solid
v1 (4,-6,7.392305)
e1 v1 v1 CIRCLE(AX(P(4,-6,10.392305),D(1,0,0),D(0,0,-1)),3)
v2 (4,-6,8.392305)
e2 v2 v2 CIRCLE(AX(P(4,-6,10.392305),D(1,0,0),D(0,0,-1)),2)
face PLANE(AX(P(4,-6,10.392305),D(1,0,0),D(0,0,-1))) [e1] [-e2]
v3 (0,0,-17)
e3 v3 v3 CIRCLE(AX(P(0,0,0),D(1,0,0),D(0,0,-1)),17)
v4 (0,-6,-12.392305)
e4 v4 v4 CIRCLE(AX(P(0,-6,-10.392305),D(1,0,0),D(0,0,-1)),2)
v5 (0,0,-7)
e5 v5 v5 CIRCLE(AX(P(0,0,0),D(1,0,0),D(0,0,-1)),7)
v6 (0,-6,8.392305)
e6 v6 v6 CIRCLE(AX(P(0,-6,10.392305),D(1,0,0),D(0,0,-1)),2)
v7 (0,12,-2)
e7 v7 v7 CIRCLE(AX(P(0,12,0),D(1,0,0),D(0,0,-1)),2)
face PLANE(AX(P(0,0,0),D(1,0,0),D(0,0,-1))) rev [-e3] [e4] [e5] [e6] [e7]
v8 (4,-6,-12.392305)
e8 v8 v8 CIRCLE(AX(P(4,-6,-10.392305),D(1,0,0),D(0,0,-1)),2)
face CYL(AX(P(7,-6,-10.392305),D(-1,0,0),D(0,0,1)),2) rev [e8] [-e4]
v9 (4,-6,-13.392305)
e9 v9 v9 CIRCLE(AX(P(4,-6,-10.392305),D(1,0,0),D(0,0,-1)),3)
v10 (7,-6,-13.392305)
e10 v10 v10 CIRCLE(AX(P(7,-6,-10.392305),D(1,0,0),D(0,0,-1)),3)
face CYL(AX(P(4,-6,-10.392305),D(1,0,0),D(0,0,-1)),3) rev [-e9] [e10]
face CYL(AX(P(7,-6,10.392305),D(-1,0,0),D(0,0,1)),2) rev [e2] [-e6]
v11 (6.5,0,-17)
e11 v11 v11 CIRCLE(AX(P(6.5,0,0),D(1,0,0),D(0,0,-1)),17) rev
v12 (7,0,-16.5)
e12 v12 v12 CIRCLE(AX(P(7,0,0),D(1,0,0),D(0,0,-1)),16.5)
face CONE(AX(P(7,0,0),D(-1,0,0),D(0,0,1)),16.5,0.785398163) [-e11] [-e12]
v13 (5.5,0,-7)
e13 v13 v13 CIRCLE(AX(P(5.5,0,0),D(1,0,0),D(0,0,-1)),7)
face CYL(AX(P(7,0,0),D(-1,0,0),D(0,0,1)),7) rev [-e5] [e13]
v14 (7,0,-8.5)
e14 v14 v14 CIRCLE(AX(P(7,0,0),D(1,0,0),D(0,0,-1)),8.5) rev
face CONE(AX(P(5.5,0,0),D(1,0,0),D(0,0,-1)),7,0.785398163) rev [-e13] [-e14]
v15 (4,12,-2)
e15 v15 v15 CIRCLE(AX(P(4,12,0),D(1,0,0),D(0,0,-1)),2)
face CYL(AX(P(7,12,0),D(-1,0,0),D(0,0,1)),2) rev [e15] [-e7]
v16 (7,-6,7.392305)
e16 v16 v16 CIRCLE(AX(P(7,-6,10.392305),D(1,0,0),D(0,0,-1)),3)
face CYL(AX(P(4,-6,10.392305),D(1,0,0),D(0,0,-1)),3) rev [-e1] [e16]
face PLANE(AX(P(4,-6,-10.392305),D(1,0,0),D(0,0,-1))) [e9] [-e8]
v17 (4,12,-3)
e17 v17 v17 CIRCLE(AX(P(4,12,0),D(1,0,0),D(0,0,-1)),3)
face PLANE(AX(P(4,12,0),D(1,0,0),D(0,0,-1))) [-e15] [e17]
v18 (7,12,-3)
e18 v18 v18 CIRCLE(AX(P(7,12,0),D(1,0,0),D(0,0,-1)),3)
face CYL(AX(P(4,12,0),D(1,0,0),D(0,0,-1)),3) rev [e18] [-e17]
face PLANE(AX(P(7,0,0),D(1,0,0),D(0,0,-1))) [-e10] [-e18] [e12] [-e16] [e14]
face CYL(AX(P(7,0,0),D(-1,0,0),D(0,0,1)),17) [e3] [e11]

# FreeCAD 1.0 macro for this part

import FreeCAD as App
import Part
import Sketcher
Q = App.Units.Quantity


def edges_at(feature, points):
    """Names of the edges that pass closest to the given points."""
    edges = feature.Shape.Edges
    near = lambda p: min(range(len(edges)), key=lambda i: edges[i].distToShape(Part.Vertex(*p))[0])
    return sorted({f"Edge{near(p) + 1}" for p in points})

doc = App.newDocument("Part")
body = doc.addObject("PartDesign::Body", "Body")

# Sketch on YZ plane
sketch1 = body.newObject("Sketcher::SketchObject", "Sketch")
sketch1.AttachmentSupport = (doc.getObject("YZ_Plane"), [""])
sketch1.MapMode = "FlatFace"
sketch1.addGeometry(Part.Circle(App.Vector(0, 0, 0), App.Vector(0, 0, 1), 17), False)
sketch1.addGeometry(Part.Circle(App.Vector(-6, 10.392305, 0), App.Vector(0, 0, 1), 2), False)
sketch1.addGeometry(Part.Circle(App.Vector(0, 0, 0), App.Vector(0, 0, 1), 7), False)
sketch1.addGeometry(Part.Circle(App.Vector(-6, -10.392305, 0), App.Vector(0, 0, 1), 2), False)
sketch1.addGeometry(Part.Circle(App.Vector(12, 0, 0), App.Vector(0, 0, 1), 2), False)
sketch1.addConstraint(Sketcher.Constraint("Coincident", 0, 3, -1, 1))
sketch1.addConstraint(Sketcher.Constraint("Coincident", 2, 3, -1, 1))
sketch1.addConstraint(Sketcher.Constraint("Equal", 1, 3))
sketch1.addConstraint(Sketcher.Constraint("Equal", 3, 4))
sketch1.addConstraint(Sketcher.Constraint("Symmetric", 1, 3, 3, 3, -1))
sketch1.addConstraint(Sketcher.Constraint("PointOnObject", 4, 3, -1))
sketch1.addConstraint(Sketcher.Constraint("Diameter", 0, Q("34 mm")))
sketch1.addConstraint(Sketcher.Constraint("Diameter", 1, Q("4 mm")))
sketch1.addConstraint(Sketcher.Constraint("Diameter", 2, Q("14 mm")))
sketch1.addConstraint(Sketcher.Constraint("DistanceX", 1, 3, -1, 1, Q("6 mm")))
sketch1.addConstraint(Sketcher.Constraint("DistanceX", -1, 1, 4, 3, Q("12 mm")))
sketch1.addConstraint(Sketcher.Constraint("DistanceY", 3, 3, 1, 3, Q("20.78461 mm")))
pad1 = body.newObject("PartDesign::Pad", "Pad")
pad1.Profile = sketch1
pad1.Length = 7

# Sketch on YZ plane
sketch2 = body.newObject("Sketcher::SketchObject", "Sketch001")
sketch2.AttachmentSupport = (doc.getObject("YZ_Plane"), [""])
sketch2.MapMode = "FlatFace"
sketch2.AttachmentOffset = App.Placement(App.Vector(0, 0, 7), App.Rotation())
sketch2.addGeometry(Part.Circle(App.Vector(12, 0, 0), App.Vector(0, 0, 1), 3), False)
sketch2.addGeometry(Part.Circle(App.Vector(-6, -10.392305, 0), App.Vector(0, 0, 1), 3), False)
sketch2.addGeometry(Part.Circle(App.Vector(-6, 10.392305, 0), App.Vector(0, 0, 1), 3), False)
sketch2.addConstraint(Sketcher.Constraint("Equal", 0, 1))
sketch2.addConstraint(Sketcher.Constraint("Equal", 1, 2))
sketch2.addConstraint(Sketcher.Constraint("Symmetric", 1, 3, 2, 3, -1))
sketch2.addConstraint(Sketcher.Constraint("PointOnObject", 0, 3, -1))
sketch2.addConstraint(Sketcher.Constraint("Diameter", 0, Q("6 mm")))
sketch2.addConstraint(Sketcher.Constraint("DistanceX", -1, 1, 0, 3, Q("12 mm")))
sketch2.addConstraint(Sketcher.Constraint("DistanceX", 1, 3, -1, 1, Q("6 mm")))
sketch2.addConstraint(Sketcher.Constraint("DistanceY", 1, 3, 2, 3, Q("20.78461 mm")))
pocket1 = body.newObject("PartDesign::Pocket", "Pocket")
pocket1.Profile = sketch2
pocket1.Length = 3
doc.recompute()

chamfer = body.newObject("PartDesign::Chamfer", "Chamfer")
chamfer.Base = (pocket1, edges_at(pocket1, [(7, 0, 7)]))
chamfer.Size = 1.5
doc.recompute()

chamfer2 = body.newObject("PartDesign::Chamfer", "Chamfer001")
chamfer2.Base = (chamfer, edges_at(chamfer, [(7, 0, 17)]))
chamfer2.Size = 0.5

doc.recompute()
